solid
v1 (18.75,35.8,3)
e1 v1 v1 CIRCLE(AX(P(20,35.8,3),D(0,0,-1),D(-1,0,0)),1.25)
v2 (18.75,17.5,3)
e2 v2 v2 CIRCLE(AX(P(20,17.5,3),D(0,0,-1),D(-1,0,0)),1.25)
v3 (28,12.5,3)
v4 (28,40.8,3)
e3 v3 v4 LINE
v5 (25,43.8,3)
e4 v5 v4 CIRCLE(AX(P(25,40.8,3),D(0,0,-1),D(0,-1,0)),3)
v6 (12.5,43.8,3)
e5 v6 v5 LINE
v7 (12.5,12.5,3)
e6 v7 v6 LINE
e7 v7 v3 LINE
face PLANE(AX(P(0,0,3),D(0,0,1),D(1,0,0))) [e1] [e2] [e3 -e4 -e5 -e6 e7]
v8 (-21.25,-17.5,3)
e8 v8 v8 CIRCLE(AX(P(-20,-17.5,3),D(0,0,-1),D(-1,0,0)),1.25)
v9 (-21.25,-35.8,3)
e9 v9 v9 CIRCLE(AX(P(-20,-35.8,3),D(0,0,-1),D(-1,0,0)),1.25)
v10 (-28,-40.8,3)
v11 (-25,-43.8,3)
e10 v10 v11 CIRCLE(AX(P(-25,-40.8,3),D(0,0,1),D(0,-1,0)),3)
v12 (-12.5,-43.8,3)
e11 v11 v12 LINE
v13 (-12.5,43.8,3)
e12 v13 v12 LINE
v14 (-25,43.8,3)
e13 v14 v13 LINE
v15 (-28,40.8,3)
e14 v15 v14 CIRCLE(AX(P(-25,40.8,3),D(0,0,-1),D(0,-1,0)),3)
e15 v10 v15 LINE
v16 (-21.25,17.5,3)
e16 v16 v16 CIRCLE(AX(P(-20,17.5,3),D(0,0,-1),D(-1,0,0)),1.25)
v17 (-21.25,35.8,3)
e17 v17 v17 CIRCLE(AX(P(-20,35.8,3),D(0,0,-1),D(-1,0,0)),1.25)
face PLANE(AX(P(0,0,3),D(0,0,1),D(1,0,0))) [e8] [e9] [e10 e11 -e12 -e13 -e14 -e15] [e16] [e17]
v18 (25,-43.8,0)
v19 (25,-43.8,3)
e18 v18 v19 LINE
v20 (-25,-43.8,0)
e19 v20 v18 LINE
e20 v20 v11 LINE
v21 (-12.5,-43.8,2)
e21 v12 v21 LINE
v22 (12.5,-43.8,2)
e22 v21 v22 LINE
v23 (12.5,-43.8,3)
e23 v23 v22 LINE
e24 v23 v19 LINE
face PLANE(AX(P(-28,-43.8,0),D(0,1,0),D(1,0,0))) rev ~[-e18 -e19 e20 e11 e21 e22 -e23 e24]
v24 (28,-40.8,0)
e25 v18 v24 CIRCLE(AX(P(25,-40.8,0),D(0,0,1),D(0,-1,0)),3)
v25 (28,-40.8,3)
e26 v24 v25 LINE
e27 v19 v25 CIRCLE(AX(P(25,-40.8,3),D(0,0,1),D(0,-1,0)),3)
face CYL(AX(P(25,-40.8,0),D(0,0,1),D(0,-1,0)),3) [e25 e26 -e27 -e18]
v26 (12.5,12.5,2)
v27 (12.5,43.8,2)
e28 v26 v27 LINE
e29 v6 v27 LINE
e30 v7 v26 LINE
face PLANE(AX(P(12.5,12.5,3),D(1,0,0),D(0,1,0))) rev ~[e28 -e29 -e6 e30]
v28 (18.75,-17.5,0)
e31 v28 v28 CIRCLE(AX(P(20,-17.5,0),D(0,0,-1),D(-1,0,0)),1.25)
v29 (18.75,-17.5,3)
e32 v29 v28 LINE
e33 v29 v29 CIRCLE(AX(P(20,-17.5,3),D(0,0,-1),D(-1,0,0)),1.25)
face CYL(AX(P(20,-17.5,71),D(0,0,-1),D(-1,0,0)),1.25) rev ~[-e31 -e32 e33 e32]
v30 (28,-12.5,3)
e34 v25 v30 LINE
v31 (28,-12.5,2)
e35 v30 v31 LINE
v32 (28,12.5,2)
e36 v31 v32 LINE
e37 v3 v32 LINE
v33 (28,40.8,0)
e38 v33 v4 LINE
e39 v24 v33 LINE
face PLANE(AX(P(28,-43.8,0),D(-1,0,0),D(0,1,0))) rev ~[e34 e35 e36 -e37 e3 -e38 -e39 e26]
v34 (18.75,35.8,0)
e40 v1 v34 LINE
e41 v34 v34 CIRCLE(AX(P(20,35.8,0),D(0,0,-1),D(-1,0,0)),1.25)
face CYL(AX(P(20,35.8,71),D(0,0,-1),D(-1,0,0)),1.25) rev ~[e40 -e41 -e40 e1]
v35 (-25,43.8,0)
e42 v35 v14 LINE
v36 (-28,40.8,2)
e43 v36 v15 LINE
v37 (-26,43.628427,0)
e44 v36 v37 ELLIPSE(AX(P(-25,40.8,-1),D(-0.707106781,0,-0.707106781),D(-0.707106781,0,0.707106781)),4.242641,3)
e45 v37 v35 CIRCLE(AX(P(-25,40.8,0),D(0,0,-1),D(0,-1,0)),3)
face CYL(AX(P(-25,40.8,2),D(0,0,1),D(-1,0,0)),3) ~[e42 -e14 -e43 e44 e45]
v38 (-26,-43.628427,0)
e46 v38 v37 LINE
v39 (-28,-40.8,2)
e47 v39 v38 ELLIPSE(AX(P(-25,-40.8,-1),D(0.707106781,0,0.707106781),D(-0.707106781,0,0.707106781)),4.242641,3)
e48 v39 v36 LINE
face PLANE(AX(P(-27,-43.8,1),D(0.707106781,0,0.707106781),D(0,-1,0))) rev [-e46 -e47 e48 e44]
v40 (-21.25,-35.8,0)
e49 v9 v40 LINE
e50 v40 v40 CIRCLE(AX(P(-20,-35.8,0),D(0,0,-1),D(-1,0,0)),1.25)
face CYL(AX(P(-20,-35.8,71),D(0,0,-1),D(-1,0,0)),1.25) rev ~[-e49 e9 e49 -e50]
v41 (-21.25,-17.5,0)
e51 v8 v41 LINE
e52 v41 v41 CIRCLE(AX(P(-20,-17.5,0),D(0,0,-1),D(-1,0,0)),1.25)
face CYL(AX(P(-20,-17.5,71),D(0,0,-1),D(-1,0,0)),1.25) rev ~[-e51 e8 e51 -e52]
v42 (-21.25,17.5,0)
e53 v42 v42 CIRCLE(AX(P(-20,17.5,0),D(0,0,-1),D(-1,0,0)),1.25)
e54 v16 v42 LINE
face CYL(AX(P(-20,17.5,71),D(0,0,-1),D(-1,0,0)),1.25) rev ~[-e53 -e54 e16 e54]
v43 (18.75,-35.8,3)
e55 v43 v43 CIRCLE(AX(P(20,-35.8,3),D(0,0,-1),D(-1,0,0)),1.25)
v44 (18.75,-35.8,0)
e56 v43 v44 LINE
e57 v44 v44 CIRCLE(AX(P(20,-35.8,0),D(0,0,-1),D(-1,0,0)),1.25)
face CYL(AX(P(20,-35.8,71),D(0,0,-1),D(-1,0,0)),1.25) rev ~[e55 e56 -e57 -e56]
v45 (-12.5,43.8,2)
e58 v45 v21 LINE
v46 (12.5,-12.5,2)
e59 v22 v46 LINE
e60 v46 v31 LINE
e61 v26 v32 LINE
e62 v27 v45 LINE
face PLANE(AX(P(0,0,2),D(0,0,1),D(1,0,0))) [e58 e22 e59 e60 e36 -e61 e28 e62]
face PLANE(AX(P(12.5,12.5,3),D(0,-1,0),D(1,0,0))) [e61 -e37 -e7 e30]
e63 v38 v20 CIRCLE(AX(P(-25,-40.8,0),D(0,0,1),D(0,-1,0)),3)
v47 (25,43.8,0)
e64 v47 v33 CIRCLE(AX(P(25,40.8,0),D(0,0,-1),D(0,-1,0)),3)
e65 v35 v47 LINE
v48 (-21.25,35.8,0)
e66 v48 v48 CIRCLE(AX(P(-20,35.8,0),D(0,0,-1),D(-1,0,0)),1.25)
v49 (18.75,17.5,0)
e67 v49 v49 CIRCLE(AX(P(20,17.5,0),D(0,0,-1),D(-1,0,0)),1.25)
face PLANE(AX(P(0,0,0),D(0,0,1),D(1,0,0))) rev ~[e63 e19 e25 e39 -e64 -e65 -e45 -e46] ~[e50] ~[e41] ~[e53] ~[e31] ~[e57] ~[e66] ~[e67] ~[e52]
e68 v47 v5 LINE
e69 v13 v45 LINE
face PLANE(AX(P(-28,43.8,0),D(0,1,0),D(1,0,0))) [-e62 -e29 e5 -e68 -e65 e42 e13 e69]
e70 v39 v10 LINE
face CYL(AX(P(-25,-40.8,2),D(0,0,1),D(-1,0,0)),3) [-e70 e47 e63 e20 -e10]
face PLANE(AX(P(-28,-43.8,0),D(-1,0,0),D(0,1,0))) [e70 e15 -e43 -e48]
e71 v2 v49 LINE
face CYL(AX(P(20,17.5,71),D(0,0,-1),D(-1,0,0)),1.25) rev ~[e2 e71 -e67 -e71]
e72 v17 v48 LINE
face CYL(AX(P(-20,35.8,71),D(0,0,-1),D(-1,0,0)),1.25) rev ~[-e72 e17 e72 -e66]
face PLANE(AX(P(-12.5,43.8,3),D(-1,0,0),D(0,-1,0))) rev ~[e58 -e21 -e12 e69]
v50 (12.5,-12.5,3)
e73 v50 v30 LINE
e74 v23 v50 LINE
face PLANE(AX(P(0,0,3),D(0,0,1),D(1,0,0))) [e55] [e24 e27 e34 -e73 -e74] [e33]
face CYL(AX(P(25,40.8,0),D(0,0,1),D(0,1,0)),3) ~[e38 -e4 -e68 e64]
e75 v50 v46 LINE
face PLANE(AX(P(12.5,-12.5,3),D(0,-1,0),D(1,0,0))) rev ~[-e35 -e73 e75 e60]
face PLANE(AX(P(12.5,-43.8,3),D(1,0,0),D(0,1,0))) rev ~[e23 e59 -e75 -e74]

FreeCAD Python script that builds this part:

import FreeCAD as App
import Part
import Sketcher
from FreeCAD import Vector
Q = App.Units.Quantity


def edges_at(feature, points):
    """Names of the edges that pass closest to the given points."""
    edges = feature.Shape.Edges
    near = lambda p: min(range(len(edges)), key=lambda i: edges[i].distToShape(Part.Vertex(*p))[0])
    return sorted({f"Edge{near(p) + 1}" for p in points})


def add_polygon(sketch, points):
    """Adds a closed chain of lines whose ends are joined by coincident constraints."""
    first, n = sketch.GeometryCount, len(points)
    for a, b in zip(points, points[1:] + points[:1]):
        sketch.addGeometry(Part.LineSegment(App.Vector(*a, 0), App.Vector(*b, 0)), False)
    for i in range(n):
        sketch.addConstraint(Sketcher.Constraint("Coincident", first + i, 2, first + (i + 1) % n, 1))

doc = App.newDocument("Part")
body = doc.addObject("PartDesign::Body", "Body")

sketch1 = body.newObject("Sketcher::SketchObject", "Sketch")
sketch1.AttachmentSupport = (doc.getObject("XY_Plane"), [""])
sketch1.MapMode = "FlatFace"
add_polygon(sketch1, [(-28, 44), (-28, -44), (28, -44), (28, 44)])
sketch1.addConstraint([
    Sketcher.Constraint("Vertical", 0),
    Sketcher.Constraint("Horizontal", 1),
    Sketcher.Constraint("Vertical", 2),
    Sketcher.Constraint("Horizontal", 3),
    Sketcher.Constraint("Symmetric", 0, 2, 2, 2, -1, 1),
    Sketcher.Constraint("DistanceX", 1, 1, 1, 2, Q("56 mm")),
    Sketcher.Constraint("DistanceY", 0, 2, 0, 1, Q("87.6 mm")),
])
pad1 = body.newObject("PartDesign::Pad", "Pad")
pad1.Profile = sketch1
pad1.Length = 3
doc.recompute()

chamfer = body.newObject("PartDesign::Chamfer", "Chamfer")
chamfer.Base = (pad1, edges_at(pad1, [(-28, 0, 0)]))
chamfer.Size = 2

sketch2 = body.newObject("Sketcher::SketchObject", "Sketch001")
sketch2.AttachmentSupport = (doc.getObject("XY_Plane"), [""])
sketch2.MapMode = "FlatFace"
sketch2.AttachmentOffset = App.Placement(Vector(0, 0, 3), App.Rotation())
add_polygon(sketch2, [(12, 44), (-12, 44), (-12, -44), (12, -44), (12, -12), (28, -12), (28, 12), (12, 12)])
sketch2.addConstraint([
    Sketcher.Constraint("Horizontal", 0),
    Sketcher.Constraint("Vertical", 1),
    Sketcher.Constraint("Horizontal", 2),
    Sketcher.Constraint("Vertical", 3),
    Sketcher.Constraint("Horizontal", 4),
    Sketcher.Constraint("Vertical", 5),
    Sketcher.Constraint("Horizontal", 6),
    Sketcher.Constraint("Vertical", 7),
    Sketcher.Constraint("Symmetric", 0, 2, 2, 2, -1, 1),
    Sketcher.Constraint("Symmetric", 3, 2, 6, 2, -1),
    Sketcher.Constraint("Equal", 2, 5),
    Sketcher.Constraint("DistanceX", 0, 2, 0, 1, Q("25 mm")),
    Sketcher.Constraint("DistanceX", 4, 1, 4, 2, Q("15.5 mm")),
    Sketcher.Constraint("DistanceY", 1, 2, 1, 1, Q("87.6 mm")),
])
pocket1 = body.newObject("PartDesign::Pocket", "Pocket")
pocket1.Profile = sketch2
pocket1.Length = 1
doc.recompute()

fillet = body.newObject("PartDesign::Fillet", "Fillet")
fillet.Base = (pocket1, edges_at(pocket1, [
    (-28, 43.8, 2.5),
    (-28, -43.8, 2.5),
    (28, -43.8, 1.5),
    (28, 43.8, 1.5),
]))
fillet.Radius = 3

sketch3 = body.newObject("Sketcher::SketchObject", "Sketch002")
sketch3.AttachmentSupport = (doc.getObject("XY_Plane"), [""])
sketch3.MapMode = "FlatFace"
sketch3.AttachmentOffset = App.Placement(Vector(0, 0, 3), App.Rotation())
sketch3.addGeometry([
    Part.Circle(Vector(-20, 35.8, 0), Vector(0, 0, 1), 1.2),
    Part.Circle(Vector(20, 35.8, 0), Vector(0, 0, 1), 1.2),
    Part.Circle(Vector(20, 17.5, 0), Vector(0, 0, 1), 1.2),
    Part.Circle(Vector(20, -17.5, 0), Vector(0, 0, 1), 1.2),
    Part.Circle(Vector(20, -35.8, 0), Vector(0, 0, 1), 1.2),
    Part.Circle(Vector(-20, -35.8, 0), Vector(0, 0, 1), 1.2),
    Part.Circle(Vector(-20, 17.5, 0), Vector(0, 0, 1), 1.2),
    Part.Circle(Vector(-20, -17.5, 0), Vector(0, 0, 1), 1.2),
], False)
sketch3.addConstraint([
    Sketcher.Constraint("Equal", 0, 1),
    Sketcher.Constraint("Equal", 1, 2),
    Sketcher.Constraint("Equal", 2, 3),
    Sketcher.Constraint("Equal", 3, 4),
    Sketcher.Constraint("Equal", 4, 5),
    Sketcher.Constraint("Equal", 5, 6),
    Sketcher.Constraint("Equal", 6, 7),
    Sketcher.Constraint("Symmetric", 0, 3, 4, 3, -1, 1),
    Sketcher.Constraint("Symmetric", 1, 3, 5, 3, -1, 1),
    Sketcher.Constraint("Symmetric", 3, 3, 6, 3, -1, 1),
    Sketcher.Constraint("Symmetric", 2, 3, 7, 3, -1, 1),
    Sketcher.Constraint("Symmetric", 0, 3, 1, 3, -2),
    Sketcher.Constraint("Symmetric", 2, 3, 6, 3, -2),
    Sketcher.Constraint("Vertical", 1, 3, 2, 3),
    Sketcher.Constraint("Diameter", 0, Q("2.5 mm")),
    Sketcher.Constraint("DistanceX", 0, 3, -1, 1, Q("20 mm")),
    Sketcher.Constraint("DistanceY", 3, 3, 2, 3, Q("35 mm")),
    Sketcher.Constraint("DistanceY", -1, 1, 0, 3, Q("35.8 mm")),
])
doc.recompute()
hole = body.newObject("PartDesign::Hole", "Hole")
hole.Profile = sketch3
hole.ThreadType = "None"
hole.Diameter = 2.5
hole.DepthType = "Dimension"
hole.Depth = 68
hole.DrillPoint = "Angled"
hole.DrillPointAngle = 118

doc.recompute()
